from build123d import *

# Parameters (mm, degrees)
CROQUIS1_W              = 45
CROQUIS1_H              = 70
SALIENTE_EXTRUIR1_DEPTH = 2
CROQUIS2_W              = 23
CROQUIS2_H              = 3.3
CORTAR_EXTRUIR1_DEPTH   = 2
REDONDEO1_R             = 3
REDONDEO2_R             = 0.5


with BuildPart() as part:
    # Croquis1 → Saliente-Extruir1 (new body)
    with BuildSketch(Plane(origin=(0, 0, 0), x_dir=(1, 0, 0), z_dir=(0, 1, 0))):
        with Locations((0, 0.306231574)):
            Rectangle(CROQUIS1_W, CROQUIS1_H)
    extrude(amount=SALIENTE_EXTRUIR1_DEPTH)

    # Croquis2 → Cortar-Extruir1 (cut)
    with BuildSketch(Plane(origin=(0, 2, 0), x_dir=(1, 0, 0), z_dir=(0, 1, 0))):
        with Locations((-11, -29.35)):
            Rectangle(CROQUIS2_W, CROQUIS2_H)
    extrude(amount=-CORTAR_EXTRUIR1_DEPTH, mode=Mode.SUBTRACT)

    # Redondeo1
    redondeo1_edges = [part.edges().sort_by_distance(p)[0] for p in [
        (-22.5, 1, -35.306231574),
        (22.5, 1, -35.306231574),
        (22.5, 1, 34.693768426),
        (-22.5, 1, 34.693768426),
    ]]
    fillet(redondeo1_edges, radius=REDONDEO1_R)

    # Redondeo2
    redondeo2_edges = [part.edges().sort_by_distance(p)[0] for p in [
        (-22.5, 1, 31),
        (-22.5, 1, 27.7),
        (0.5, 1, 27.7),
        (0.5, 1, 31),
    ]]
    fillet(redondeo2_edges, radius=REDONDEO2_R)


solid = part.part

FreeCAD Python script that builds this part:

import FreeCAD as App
import Part
import Sketcher

V = App.Vector


def edges_at(feature, points):
    """Names of the edges that pass closest to the given points."""
    edges = feature.Shape.Edges
    near = lambda p: min(range(len(edges)), key=lambda i: edges[i].distToShape(Part.Vertex(*p))[0])
    return sorted({f"Edge{near(p) + 1}" for p in points})

doc = App.newDocument("Part")
body = doc.addObject("PartDesign::Body", "Body")

sketch1 = body.newObject("Sketcher::SketchObject", "Sketch")
sketch1.AttachmentSupport = (doc.getObject("XZ_Plane"), [""])
sketch1.MapMode = "FlatFace"
sketch1.addGeometry([
    Part.LineSegment(V(-22, -35, 0), V(-22, 35, 0)),
    Part.LineSegment(V(-22, 35, 0), V(22, 35, 0)),
    Part.LineSegment(V(22, 35, 0), V(22, -35, 0)),
    Part.LineSegment(V(22, -35, 0), V(-22, -35, 0)),
], False)
sketch1.addConstraint([
    Sketcher.Constraint("Coincident", 0, 2, 1, 1),
    Sketcher.Constraint("Coincident", 1, 2, 2, 1),
    Sketcher.Constraint("Coincident", 2, 2, 3, 1),
    Sketcher.Constraint("Coincident", 3, 2, 0, 1),
    Sketcher.Constraint("Vertical", 0),
    Sketcher.Constraint("Horizontal", 1),
    Sketcher.Constraint("Vertical", 2),
    Sketcher.Constraint("Horizontal", 3),
    Sketcher.Constraint("DistanceX", 1, 1, 1, 2, 45.0),
    Sketcher.Constraint("DistanceY", 0, 1, 0, 2, 70.0),
    Sketcher.Constraint("DistanceX", 0, 2, -1, 1, 22.5),
    Sketcher.Constraint("DistanceY", -1, 1, 0, 2, 34.693768),
])
pad1 = body.newObject("PartDesign::Pad", "Pad")
pad1.Profile = sketch1
pad1.Length = 2
pad1.Reversed = True

sketch2 = body.newObject("Sketcher::SketchObject", "Sketch001")
sketch2.AttachmentSupport = (doc.getObject("XZ_Plane"), [""])
sketch2.MapMode = "FlatFace"
sketch2.AttachmentOffset = App.Placement(V(0, 0, -2), App.Rotation())
sketch2.addGeometry([
    Part.LineSegment(V(-22.5, 27.7, 0), V(-22.5, 31, 0)),
    Part.LineSegment(V(-22.5, 31, 0), V(0.5, 31, 0)),
    Part.LineSegment(V(0.5, 31, 0), V(0.5, 27.7, 0)),
    Part.LineSegment(V(0.5, 27.7, 0), V(-22.5, 27.7, 0)),
], False)
sketch2.addConstraint([
    Sketcher.Constraint("Coincident", 0, 2, 1, 1),
    Sketcher.Constraint("Coincident", 1, 2, 2, 1),
    Sketcher.Constraint("Coincident", 2, 2, 3, 1),
    Sketcher.Constraint("Coincident", 3, 2, 0, 1),
    Sketcher.Constraint("Vertical", 0),
    Sketcher.Constraint("Horizontal", 1),
    Sketcher.Constraint("Vertical", 2),
    Sketcher.Constraint("Horizontal", 3),
    Sketcher.Constraint("DistanceX", 1, 1, 1, 2, 23.0),
    Sketcher.Constraint("DistanceY", 0, 1, 0, 2, 3.3),
    Sketcher.Constraint("DistanceY", -1, 1, 0, 2, 31.0),
    Sketcher.Constraint("DistanceX", 0, 2, -1, 1, 22.5),
])
pocket1 = body.newObject("PartDesign::Pocket", "Pocket")
pocket1.Profile = sketch2
pocket1.Length = 2
pocket1.Reversed = True
doc.recompute()

fillet = body.newObject("PartDesign::Fillet", "Fillet")
fillet.Base = (pocket1, edges_at(pocket1, [
    (-22.5, 1, -35.306),
    (22.5, 1, -35.306),
    (22.5, 1, 34.694),
    (-22.5, 1, 34.694),
]))
fillet.Radius = 3
doc.recompute()

fillet2 = body.newObject("PartDesign::Fillet", "Fillet001")
fillet2.Base = (fillet, edges_at(fillet, [
    (-22.5, 1, 31),
    (-22.5, 1, 27.7),
    (0.5, 1, 27.7),
    (0.5, 1, 31),
]))
fillet2.Radius = 0.5

doc.recompute()
